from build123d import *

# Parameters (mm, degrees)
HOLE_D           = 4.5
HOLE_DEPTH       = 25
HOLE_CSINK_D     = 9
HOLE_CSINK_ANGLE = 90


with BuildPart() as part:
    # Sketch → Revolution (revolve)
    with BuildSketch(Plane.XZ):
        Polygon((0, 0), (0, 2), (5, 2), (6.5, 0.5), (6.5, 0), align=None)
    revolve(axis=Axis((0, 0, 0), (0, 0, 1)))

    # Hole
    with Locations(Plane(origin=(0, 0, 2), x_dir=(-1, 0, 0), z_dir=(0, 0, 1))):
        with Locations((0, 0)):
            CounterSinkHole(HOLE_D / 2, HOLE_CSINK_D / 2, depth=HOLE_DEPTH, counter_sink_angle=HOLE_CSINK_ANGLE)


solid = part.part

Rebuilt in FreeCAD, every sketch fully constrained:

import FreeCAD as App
import Part
import Sketcher

V = App.Vector
Q = App.Units.Quantity


def add_polygon(sketch, points):
    """Adds a closed chain of lines whose ends are joined by coincident constraints."""
    first, n = sketch.GeometryCount, len(points)
    for a, b in zip(points, points[1:] + points[:1]):
        sketch.addGeometry(Part.LineSegment(App.Vector(*a, 0), App.Vector(*b, 0)), False)
    for i in range(n):
        sketch.addConstraint(Sketcher.Constraint("Coincident", first + i, 2, first + (i + 1) % n, 1))

doc = App.newDocument("Part")
body = doc.addObject("PartDesign::Body", "Body")

sketch1 = body.newObject("Sketcher::SketchObject", "Sketch")
sketch1.AttachmentSupport = (doc.getObject("XZ_Plane"), [""])
sketch1.MapMode = "FlatFace"
add_polygon(sketch1, [(0, 2), (0, 0), (6.5, 0), (6.5, 0.5), (5, 2)])
sketch1.addConstraint([
    Sketcher.Constraint("Vertical", 0),
    Sketcher.Constraint("Horizontal", 1),
    Sketcher.Constraint("Vertical", 2),
    Sketcher.Constraint("Horizontal", 4),
    Sketcher.Constraint("Coincident", 0, 2, -1, 1),
    Sketcher.Constraint("DistanceX", 4, 2, 4, 1, Q("5 mm")),
    Sketcher.Constraint("DistanceY", 0, 2, 0, 1, Q("2 mm")),
    Sketcher.Constraint("Angle", 3, Q("135 deg")),
    Sketcher.Constraint("DistanceX", 1, 1, 1, 2, Q("6.5 mm")),
])
revolution = body.newObject("PartDesign::Revolution", "Revolution")
revolution.Profile = sketch1
revolution.ReferenceAxis = (sketch1, ["V_Axis"])
revolution.Angle = 360

sketch2 = body.newObject("Sketcher::SketchObject", "Sketch001")
sketch2.AttachmentSupport = (doc.getObject("XY_Plane"), [""])
sketch2.MapMode = "FlatFace"
sketch2.AttachmentOffset = App.Placement(V(0, 0, 2), App.Rotation())
sketch2.addGeometry(Part.Circle(V(0, 0, 0), V(0, 0, 1), 2.2), False)
sketch2.addConstraint([
    Sketcher.Constraint("Coincident", 0, 3, -1, 1),
    Sketcher.Constraint("Diameter", 0, Q("4.5 mm")),
])
doc.recompute()
hole = body.newObject("PartDesign::Hole", "Hole")
hole.Profile = sketch2
hole.ThreadType = "None"
hole.Diameter = 4.5
hole.DepthType = "Dimension"
hole.Depth = 25
hole.DrillPoint = "Flat"
hole.HoleCutType = "Countersink"
hole.HoleCutDiameter = 9
hole.HoleCutCountersinkAngle = 90

doc.recompute()
